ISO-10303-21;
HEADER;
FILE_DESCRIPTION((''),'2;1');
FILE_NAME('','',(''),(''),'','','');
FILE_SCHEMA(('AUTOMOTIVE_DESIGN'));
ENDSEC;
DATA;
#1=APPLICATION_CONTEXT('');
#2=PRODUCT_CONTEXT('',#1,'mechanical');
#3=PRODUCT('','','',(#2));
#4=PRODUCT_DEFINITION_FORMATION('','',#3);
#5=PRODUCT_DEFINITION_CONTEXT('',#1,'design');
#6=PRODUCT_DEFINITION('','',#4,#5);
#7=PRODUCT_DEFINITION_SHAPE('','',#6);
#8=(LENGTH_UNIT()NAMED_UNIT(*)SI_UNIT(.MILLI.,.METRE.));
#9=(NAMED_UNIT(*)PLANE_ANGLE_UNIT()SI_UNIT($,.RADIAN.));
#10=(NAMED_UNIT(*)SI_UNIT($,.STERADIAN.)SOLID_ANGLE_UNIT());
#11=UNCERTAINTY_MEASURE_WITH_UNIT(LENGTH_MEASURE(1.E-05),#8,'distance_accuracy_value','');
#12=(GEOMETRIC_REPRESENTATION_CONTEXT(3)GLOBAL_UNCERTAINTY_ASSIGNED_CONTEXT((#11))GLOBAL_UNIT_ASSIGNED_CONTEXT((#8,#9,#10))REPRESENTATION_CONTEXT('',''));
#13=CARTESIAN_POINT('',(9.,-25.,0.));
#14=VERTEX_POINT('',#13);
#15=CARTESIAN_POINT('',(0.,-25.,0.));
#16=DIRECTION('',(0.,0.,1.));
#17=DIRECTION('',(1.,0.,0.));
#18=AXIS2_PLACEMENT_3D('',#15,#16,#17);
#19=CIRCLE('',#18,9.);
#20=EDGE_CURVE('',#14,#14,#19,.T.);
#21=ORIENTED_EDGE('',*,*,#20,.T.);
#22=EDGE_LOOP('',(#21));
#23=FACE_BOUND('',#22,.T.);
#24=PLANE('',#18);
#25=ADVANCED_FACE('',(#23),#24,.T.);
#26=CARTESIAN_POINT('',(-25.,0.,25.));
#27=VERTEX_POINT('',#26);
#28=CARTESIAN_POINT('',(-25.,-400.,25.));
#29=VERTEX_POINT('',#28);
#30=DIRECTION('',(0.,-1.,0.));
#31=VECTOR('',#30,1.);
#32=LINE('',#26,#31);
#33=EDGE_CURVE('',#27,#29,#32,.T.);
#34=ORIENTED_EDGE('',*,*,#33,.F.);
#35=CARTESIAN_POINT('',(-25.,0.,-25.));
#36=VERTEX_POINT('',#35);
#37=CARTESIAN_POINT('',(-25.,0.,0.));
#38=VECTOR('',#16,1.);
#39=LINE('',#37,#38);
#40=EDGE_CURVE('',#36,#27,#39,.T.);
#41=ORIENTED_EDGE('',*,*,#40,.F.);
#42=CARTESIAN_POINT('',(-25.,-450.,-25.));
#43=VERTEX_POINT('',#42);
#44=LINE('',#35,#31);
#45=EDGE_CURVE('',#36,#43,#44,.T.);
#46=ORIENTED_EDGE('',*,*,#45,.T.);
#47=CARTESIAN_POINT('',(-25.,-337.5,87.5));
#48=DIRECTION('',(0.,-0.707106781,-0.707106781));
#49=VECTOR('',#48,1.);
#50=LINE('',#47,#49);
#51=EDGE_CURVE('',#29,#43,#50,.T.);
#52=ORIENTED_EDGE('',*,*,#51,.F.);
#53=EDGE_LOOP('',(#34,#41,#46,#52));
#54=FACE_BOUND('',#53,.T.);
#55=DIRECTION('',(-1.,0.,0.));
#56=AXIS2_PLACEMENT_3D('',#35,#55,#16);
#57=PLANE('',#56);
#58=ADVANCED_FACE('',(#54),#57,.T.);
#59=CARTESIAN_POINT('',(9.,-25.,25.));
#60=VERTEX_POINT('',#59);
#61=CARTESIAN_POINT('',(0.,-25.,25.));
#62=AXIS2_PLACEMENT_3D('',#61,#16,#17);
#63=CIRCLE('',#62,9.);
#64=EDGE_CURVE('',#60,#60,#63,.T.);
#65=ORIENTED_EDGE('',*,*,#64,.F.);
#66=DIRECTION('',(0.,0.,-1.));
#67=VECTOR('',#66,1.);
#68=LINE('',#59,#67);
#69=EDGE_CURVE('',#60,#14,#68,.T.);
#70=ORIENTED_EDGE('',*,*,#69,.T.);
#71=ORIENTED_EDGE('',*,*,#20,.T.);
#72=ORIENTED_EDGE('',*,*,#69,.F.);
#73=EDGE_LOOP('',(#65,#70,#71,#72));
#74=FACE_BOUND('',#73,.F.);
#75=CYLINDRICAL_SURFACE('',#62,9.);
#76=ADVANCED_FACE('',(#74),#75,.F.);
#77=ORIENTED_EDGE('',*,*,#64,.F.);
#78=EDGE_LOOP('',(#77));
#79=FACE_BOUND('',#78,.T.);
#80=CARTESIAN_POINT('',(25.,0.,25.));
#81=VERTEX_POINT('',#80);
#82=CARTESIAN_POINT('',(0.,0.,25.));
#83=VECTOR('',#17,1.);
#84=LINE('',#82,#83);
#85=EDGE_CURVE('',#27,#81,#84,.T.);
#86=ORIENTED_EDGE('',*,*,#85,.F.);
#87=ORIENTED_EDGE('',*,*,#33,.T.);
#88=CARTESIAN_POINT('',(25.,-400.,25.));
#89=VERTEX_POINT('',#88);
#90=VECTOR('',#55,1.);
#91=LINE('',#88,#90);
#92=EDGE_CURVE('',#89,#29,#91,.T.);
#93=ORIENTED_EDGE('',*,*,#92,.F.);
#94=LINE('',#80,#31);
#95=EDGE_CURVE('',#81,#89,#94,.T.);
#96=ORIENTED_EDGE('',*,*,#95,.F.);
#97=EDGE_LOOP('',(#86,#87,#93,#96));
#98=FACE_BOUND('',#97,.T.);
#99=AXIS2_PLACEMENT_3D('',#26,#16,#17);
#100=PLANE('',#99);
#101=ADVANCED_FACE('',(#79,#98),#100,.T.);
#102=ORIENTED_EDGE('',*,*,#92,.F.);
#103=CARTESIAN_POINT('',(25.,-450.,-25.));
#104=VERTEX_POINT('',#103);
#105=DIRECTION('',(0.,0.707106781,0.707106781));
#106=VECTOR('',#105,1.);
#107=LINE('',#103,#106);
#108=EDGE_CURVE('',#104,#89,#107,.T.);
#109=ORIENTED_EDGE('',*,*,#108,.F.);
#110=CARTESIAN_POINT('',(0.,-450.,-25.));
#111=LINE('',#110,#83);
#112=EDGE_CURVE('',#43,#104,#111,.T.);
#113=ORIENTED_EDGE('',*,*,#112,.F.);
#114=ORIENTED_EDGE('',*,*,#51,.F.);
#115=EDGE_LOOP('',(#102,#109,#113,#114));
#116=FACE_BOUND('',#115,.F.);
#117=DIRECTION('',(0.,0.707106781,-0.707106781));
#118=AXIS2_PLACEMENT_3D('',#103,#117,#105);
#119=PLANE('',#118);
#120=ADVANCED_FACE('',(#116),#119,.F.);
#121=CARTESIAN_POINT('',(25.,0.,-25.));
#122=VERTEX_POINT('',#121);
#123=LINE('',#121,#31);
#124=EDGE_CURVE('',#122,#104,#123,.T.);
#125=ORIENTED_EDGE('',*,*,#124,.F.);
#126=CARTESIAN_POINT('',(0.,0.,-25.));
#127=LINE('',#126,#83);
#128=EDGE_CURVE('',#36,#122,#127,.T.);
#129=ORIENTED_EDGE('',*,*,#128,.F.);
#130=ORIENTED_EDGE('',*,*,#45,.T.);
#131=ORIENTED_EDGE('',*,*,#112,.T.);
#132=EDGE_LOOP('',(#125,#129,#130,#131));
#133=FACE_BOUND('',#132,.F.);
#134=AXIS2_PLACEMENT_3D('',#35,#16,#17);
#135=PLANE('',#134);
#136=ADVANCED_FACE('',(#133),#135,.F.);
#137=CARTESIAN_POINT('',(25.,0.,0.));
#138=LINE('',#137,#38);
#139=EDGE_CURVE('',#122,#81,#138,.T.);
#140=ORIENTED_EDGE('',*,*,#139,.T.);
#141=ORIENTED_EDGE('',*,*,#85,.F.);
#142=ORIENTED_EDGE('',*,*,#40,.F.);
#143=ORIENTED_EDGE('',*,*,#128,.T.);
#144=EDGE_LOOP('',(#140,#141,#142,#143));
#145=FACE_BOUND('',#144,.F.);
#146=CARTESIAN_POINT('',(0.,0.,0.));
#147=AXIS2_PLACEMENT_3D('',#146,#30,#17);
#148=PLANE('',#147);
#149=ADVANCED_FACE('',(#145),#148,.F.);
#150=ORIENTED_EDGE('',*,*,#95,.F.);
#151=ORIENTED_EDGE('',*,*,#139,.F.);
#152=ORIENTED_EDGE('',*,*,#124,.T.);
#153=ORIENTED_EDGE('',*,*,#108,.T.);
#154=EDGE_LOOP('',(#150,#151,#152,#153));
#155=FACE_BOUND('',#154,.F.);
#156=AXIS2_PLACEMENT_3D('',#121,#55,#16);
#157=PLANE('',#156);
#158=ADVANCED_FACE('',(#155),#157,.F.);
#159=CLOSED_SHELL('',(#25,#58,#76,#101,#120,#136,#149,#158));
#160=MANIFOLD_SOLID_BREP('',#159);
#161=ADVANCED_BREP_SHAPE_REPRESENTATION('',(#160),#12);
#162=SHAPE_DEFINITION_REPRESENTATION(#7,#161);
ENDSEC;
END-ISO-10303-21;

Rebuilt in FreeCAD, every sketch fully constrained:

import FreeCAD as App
import Part
import Sketcher

doc = App.newDocument("Part")
body = doc.addObject("PartDesign::Body", "Body")

# Sketch on XZ plane
sketch1 = body.newObject("Sketcher::SketchObject", "Sketch")
sketch1.AttachmentSupport = (doc.getObject("XZ_Plane"), [""])
sketch1.MapMode = "FlatFace"
sketch1.addGeometry(Part.LineSegment(App.Vector(-25, 25, 0), App.Vector(-25, -25, 0)), False)
sketch1.addGeometry(Part.LineSegment(App.Vector(-25, -25, 0), App.Vector(25, -25, 0)), False)
sketch1.addGeometry(Part.LineSegment(App.Vector(25, -25, 0), App.Vector(25, 25, 0)), False)
sketch1.addGeometry(Part.LineSegment(App.Vector(25, 25, 0), App.Vector(-25, 25, 0)), False)
sketch1.addConstraint(Sketcher.Constraint("Coincident", 0, 2, 1, 1))
sketch1.addConstraint(Sketcher.Constraint("Coincident", 1, 2, 2, 1))
sketch1.addConstraint(Sketcher.Constraint("Coincident", 2, 2, 3, 1))
sketch1.addConstraint(Sketcher.Constraint("Coincident", 3, 2, 0, 1))
sketch1.addConstraint(Sketcher.Constraint("Vertical", 0))
sketch1.addConstraint(Sketcher.Constraint("Horizontal", 1))
sketch1.addConstraint(Sketcher.Constraint("Vertical", 2))
sketch1.addConstraint(Sketcher.Constraint("Horizontal", 3))
sketch1.addConstraint(Sketcher.Constraint("Symmetric", 0, 2, 2, 2, -1, 1))
sketch1.addConstraint(Sketcher.Constraint("Equal", 3, 0))
sketch1.addConstraint(Sketcher.Constraint("DistanceX", 1, 1, 1, 2, 50.0))
pad1 = body.newObject("PartDesign::Pad", "Pad")
pad1.Profile = sketch1
pad1.Length = 450

# Sketch on YZ plane
sketch2 = body.newObject("Sketcher::SketchObject", "Sketch001")
sketch2.AttachmentSupport = (doc.getObject("YZ_Plane"), [""])
sketch2.MapMode = "FlatFace"
sketch2.AttachmentOffset = App.Placement(App.Vector(0, 0, 25), App.Rotation())
sketch2.addGeometry(Part.LineSegment(App.Vector(-400, 25, 0), App.Vector(-450, 25, 0)), False)
sketch2.addGeometry(Part.LineSegment(App.Vector(-450, 25, 0), App.Vector(-450, -25, 0)), False)
sketch2.addGeometry(Part.LineSegment(App.Vector(-450, -25, 0), App.Vector(-400, 25, 0)), False)
sketch2.addConstraint(Sketcher.Constraint("Coincident", 0, 2, 1, 1))
sketch2.addConstraint(Sketcher.Constraint("Coincident", 1, 2, 2, 1))
sketch2.addConstraint(Sketcher.Constraint("Coincident", 2, 2, 0, 1))
sketch2.addConstraint(Sketcher.Constraint("Horizontal", 0))
sketch2.addConstraint(Sketcher.Constraint("Vertical", 1))
sketch2.addConstraint(Sketcher.Constraint("Equal", 0, 1))
sketch2.addConstraint(Sketcher.Constraint("DistanceX", 0, 2, 0, 1, 50.0))
sketch2.addConstraint(Sketcher.Constraint("DistanceX", 0, 2, -1, 1, 450.0))
sketch2.addConstraint(Sketcher.Constraint("DistanceY", -1, 1, 0, 2, 25.0))
pocket1 = body.newObject("PartDesign::Pocket", "Pocket")
pocket1.Profile = sketch2
pocket1.Type = "ThroughAll"

# Sketch on XY plane
sketch3 = body.newObject("Sketcher::SketchObject", "Sketch002")
sketch3.AttachmentSupport = (doc.getObject("XY_Plane"), [""])
sketch3.MapMode = "FlatFace"
sketch3.AttachmentOffset = App.Placement(App.Vector(0, 0, 25), App.Rotation())
sketch3.addGeometry(Part.Circle(App.Vector(0, -25, 0), App.Vector(0, 0, 1), 9), False)
sketch3.addConstraint(Sketcher.Constraint("PointOnObject", 0, 3, -2))
sketch3.addConstraint(Sketcher.Constraint("Diameter", 0, 18.0))
sketch3.addConstraint(Sketcher.Constraint("DistanceY", 0, 3, -1, 1, 25.0))
pocket2 = body.newObject("PartDesign::Pocket", "Pocket001")
pocket2.Profile = sketch3
pocket2.Length = 25

doc.recompute()
